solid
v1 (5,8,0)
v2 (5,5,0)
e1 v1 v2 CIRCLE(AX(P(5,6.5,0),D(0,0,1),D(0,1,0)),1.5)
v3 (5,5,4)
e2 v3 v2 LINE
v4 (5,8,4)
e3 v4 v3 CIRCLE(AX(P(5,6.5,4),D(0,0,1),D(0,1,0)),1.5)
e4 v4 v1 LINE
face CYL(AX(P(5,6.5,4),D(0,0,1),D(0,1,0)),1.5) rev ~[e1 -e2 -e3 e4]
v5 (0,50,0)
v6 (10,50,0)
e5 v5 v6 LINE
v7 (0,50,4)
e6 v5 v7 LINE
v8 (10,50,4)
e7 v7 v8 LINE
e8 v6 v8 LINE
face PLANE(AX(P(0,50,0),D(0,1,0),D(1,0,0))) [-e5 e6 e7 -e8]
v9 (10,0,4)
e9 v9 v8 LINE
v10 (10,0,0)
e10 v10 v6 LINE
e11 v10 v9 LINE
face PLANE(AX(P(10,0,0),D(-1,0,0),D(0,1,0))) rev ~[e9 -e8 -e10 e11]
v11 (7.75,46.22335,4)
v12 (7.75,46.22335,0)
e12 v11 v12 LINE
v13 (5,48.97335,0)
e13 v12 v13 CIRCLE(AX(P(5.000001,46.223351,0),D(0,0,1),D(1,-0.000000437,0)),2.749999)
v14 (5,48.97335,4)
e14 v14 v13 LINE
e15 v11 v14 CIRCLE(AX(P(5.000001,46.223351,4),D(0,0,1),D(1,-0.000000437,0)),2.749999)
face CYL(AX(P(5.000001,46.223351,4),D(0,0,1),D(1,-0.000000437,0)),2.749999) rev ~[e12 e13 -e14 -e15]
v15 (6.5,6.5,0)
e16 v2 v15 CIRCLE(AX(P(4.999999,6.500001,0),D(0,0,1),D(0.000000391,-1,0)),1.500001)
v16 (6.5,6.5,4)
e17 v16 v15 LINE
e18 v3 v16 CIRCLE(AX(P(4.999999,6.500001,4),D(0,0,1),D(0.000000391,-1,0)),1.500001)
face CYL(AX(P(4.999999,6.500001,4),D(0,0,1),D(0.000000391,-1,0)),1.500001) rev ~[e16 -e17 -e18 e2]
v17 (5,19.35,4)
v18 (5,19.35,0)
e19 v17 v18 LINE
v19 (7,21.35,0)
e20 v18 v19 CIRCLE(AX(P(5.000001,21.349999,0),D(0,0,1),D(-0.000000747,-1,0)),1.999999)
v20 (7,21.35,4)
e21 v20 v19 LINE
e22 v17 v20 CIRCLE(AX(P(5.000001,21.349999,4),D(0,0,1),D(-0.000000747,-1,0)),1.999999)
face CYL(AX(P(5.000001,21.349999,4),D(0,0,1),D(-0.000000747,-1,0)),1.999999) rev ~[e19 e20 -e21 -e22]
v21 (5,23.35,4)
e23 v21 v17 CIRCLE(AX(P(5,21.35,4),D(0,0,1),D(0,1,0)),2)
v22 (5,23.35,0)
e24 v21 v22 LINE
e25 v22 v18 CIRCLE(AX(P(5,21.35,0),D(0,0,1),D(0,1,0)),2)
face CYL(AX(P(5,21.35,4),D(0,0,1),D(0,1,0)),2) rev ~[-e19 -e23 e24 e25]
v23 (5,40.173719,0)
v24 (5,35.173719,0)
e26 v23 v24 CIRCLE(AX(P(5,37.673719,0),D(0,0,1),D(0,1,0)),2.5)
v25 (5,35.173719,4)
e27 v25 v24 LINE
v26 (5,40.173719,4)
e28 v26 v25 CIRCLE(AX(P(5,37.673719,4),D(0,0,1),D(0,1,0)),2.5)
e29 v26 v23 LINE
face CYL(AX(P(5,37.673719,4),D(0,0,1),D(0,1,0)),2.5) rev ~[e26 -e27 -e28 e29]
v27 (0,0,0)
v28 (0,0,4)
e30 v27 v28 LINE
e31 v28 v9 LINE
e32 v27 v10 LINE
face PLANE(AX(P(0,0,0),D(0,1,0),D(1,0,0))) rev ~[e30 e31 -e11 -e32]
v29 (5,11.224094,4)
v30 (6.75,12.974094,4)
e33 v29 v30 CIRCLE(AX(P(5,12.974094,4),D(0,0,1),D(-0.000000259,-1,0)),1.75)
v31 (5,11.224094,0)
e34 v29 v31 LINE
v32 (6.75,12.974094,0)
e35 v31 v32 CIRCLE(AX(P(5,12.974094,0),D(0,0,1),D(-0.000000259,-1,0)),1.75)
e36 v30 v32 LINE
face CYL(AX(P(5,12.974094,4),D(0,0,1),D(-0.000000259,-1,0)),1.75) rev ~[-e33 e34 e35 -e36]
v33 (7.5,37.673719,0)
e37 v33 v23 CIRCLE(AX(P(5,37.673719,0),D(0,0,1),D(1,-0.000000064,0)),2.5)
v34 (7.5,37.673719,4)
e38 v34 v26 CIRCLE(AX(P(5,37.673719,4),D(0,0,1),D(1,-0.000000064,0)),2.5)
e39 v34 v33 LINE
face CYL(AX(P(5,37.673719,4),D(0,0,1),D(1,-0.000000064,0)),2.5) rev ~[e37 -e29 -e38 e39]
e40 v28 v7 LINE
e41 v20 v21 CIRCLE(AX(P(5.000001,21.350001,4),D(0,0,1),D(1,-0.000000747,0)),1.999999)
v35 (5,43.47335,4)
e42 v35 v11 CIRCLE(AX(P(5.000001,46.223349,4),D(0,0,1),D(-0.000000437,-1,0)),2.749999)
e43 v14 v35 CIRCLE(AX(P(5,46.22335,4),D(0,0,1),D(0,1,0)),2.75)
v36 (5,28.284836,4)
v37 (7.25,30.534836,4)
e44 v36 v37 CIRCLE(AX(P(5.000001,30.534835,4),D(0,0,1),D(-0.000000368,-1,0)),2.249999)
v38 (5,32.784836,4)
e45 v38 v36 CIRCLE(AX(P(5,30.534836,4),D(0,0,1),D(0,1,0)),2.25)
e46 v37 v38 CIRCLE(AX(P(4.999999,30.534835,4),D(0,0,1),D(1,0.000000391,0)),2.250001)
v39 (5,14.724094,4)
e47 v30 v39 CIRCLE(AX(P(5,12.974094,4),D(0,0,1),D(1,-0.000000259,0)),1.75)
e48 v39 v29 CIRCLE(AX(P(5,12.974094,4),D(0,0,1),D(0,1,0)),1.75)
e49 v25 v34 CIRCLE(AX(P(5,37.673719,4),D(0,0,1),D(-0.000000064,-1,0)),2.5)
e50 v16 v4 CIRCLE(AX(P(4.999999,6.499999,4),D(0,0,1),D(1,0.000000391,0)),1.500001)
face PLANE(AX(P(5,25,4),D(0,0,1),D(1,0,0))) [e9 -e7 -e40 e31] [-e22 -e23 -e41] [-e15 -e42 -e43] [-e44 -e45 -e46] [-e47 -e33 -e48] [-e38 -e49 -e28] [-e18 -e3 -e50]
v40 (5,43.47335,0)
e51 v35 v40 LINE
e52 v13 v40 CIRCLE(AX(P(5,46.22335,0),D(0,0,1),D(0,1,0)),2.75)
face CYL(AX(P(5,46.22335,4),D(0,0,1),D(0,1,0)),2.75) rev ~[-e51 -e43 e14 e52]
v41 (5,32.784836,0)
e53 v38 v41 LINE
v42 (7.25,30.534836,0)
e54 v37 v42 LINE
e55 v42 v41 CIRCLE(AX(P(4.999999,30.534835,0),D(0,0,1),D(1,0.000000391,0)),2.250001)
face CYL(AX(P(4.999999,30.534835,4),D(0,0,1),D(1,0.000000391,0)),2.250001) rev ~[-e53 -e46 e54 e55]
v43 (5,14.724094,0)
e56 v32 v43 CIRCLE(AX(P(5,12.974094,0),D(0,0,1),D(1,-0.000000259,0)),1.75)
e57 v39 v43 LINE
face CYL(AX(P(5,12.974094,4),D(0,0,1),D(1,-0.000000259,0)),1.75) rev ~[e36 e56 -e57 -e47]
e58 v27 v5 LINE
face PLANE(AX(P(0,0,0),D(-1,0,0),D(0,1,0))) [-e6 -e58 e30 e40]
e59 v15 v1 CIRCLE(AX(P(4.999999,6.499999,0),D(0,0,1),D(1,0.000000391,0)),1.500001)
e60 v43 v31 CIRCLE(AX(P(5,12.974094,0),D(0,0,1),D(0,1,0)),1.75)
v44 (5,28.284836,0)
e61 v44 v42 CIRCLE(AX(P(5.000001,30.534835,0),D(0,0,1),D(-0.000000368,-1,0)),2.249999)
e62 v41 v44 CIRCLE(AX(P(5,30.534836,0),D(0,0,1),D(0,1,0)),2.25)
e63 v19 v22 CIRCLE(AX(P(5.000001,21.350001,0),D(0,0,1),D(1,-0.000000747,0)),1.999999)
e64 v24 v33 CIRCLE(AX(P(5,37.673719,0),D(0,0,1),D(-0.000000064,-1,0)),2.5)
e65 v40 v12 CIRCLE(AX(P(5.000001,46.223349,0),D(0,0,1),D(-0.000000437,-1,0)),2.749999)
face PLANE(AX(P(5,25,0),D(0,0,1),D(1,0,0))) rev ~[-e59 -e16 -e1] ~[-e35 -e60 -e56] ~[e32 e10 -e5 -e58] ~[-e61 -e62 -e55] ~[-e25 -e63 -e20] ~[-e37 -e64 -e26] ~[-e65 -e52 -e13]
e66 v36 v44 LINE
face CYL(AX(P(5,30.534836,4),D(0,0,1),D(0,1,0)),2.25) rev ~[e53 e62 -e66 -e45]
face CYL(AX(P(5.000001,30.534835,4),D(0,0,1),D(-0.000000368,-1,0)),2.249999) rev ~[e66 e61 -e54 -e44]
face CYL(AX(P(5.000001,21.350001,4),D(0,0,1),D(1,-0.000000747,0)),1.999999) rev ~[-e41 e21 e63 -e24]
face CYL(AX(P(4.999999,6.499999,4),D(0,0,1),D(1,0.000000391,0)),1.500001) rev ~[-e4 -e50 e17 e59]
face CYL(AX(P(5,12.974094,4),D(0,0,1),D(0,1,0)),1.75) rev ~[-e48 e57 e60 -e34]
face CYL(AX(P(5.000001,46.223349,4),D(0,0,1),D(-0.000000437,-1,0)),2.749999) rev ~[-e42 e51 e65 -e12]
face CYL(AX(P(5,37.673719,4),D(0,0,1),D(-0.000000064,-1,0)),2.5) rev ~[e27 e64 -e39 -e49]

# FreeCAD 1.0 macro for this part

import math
import FreeCAD as App
import Part
import Sketcher
from FreeCAD import Vector

doc = App.newDocument("Part")
body = doc.addObject("PartDesign::Body", "Body")

# Sketch on XY plane
sketch1 = body.newObject("Sketcher::SketchObject", "Sketch")
sketch1.AttachmentSupport = (doc.getObject("XY_Plane"), [""])
sketch1.MapMode = "FlatFace"
sketch1.addGeometry([
    Part.LineSegment(Vector(0, 50, 0), Vector(0, 0, 0)),
    Part.LineSegment(Vector(0, 0, 0), Vector(10, 0, 0)),
    Part.LineSegment(Vector(10, 0, 0), Vector(10, 50, 0)),
    Part.LineSegment(Vector(10, 50, 0), Vector(0, 50, 0)),
], False)
sketch1.addConstraint([
    Sketcher.Constraint("Coincident", 0, 2, 1, 1),
    Sketcher.Constraint("Coincident", 1, 2, 2, 1),
    Sketcher.Constraint("Coincident", 2, 2, 3, 1),
    Sketcher.Constraint("Coincident", 3, 2, 0, 1),
    Sketcher.Constraint("Vertical", 0),
    Sketcher.Constraint("Horizontal", 1),
    Sketcher.Constraint("Vertical", 2),
    Sketcher.Constraint("Horizontal", 3),
    Sketcher.Constraint("Coincident", 0, 2, -1, 1),
    Sketcher.Constraint("DistanceX", 1, 1, 1, 2, 10.0),
    Sketcher.Constraint("DistanceY", 0, 2, 0, 1, 50.0),
])
pad1 = body.newObject("PartDesign::Pad", "Pad")
pad1.Profile = sketch1
pad1.Length = 4

# Sketch on XY plane
sketch2 = body.newObject("Sketcher::SketchObject", "Sketch001")
sketch2.AttachmentSupport = (doc.getObject("XY_Plane"), [""])
sketch2.MapMode = "FlatFace"
sketch2.AttachmentOffset = App.Placement(Vector(0, 0, 4), App.Rotation())
sketch2.addGeometry([
    Part.ArcOfCircle(Part.Circle(Vector(4.999999, 6.500001, 0), Vector(0, 0, 1), 1.500001), math.radians(-89.999978), math.radians(-0.000022)),  # 0
    Part.ArcOfCircle(Part.Circle(Vector(4.999999, 6.499999, 0), Vector(0, 0, 1), 1.500001), math.radians(0.000022), math.radians(89.999978)),  # 1
    Part.ArcOfCircle(Part.Circle(Vector(5, 6.5, 0), Vector(0, 0, 1), 1.5), math.radians(90), math.radians(270)),  # 2
    Part.ArcOfCircle(Part.Circle(Vector(5, 46.22335, 0), Vector(0, 0, 1), 2.75), math.radians(90), math.radians(270)),  # 3
    Part.ArcOfCircle(Part.Circle(Vector(5.000001, 46.223349, 0), Vector(0, 0, 1), 2.749999), math.radians(-90.000025), math.radians(0.000025)),  # 4
    Part.ArcOfCircle(Part.Circle(Vector(5.000001, 46.223351, 0), Vector(0, 0, 1), 2.749999), math.radians(-0.000025), math.radians(90.000025)),  # 5
    Part.ArcOfCircle(Part.Circle(Vector(5, 37.673719, 0), Vector(0, 0, 1), 2.5), math.radians(90), math.radians(270)),  # 6
    Part.ArcOfCircle(Part.Circle(Vector(5, 37.673719, 0), Vector(0, 0, 1), 2.5), math.radians(-90.000004), math.radians(0.000004)),  # 7
    Part.ArcOfCircle(Part.Circle(Vector(5, 37.673719, 0), Vector(0, 0, 1), 2.5), math.radians(-0.000004), math.radians(90.000004)),  # 8
    Part.ArcOfCircle(Part.Circle(Vector(5, 30.534836, 0), Vector(0, 0, 1), 2.25), math.radians(90), math.radians(270)),  # 9
    Part.ArcOfCircle(Part.Circle(Vector(5.000001, 30.534835, 0), Vector(0, 0, 1), 2.249999), math.radians(-90.000021), math.radians(0.000021)),  # 10
    Part.ArcOfCircle(Part.Circle(Vector(4.999999, 30.534835, 0), Vector(0, 0, 1), 2.250001), math.radians(0.000022), math.radians(89.999978)),  # 11
    Part.ArcOfCircle(Part.Circle(Vector(5, 21.35, 0), Vector(0, 0, 1), 2), math.radians(90), math.radians(270)),  # 12
    Part.ArcOfCircle(Part.Circle(Vector(5.000001, 21.349999, 0), Vector(0, 0, 1), 1.999999), math.radians(-90.000043), math.radians(0.000043)),  # 13
    Part.ArcOfCircle(Part.Circle(Vector(5.000001, 21.350001, 0), Vector(0, 0, 1), 1.999999), math.radians(-0.000043), math.radians(90.000043)),  # 14
    Part.ArcOfCircle(Part.Circle(Vector(5, 12.974094, 0), Vector(0, 0, 1), 1.75), math.radians(90), math.radians(270)),  # 15
    Part.ArcOfCircle(Part.Circle(Vector(5, 12.974094, 0), Vector(0, 0, 1), 1.75), math.radians(-90.000015), math.radians(0.000015)),  # 16
    Part.ArcOfCircle(Part.Circle(Vector(5, 12.974094, 0), Vector(0, 0, 1), 1.75), math.radians(-0.000015), math.radians(90.000015)),  # 17
], False)
sketch2.addConstraint([
    Sketcher.Constraint("Tangent", 0, 2, 1, 1),
    Sketcher.Constraint("Tangent", 1, 2, 2, 1),
    Sketcher.Constraint("Tangent", 2, 2, 0, 1),
    Sketcher.Constraint("Tangent", 3, 2, 4, 1),
    Sketcher.Constraint("Tangent", 4, 2, 5, 1),
    Sketcher.Constraint("Tangent", 5, 2, 3, 1),
    Sketcher.Constraint("Tangent", 6, 2, 7, 1),
    Sketcher.Constraint("Tangent", 7, 2, 8, 1),
    Sketcher.Constraint("Tangent", 8, 2, 6, 1),
    Sketcher.Constraint("Tangent", 9, 2, 10, 1),
    Sketcher.Constraint("Tangent", 10, 2, 11, 1),
    Sketcher.Constraint("Tangent", 11, 2, 9, 1),
    Sketcher.Constraint("Tangent", 12, 2, 13, 1),
    Sketcher.Constraint("Tangent", 13, 2, 14, 1),
    Sketcher.Constraint("Tangent", 14, 2, 12, 1),
    Sketcher.Constraint("Tangent", 15, 2, 16, 1),
    Sketcher.Constraint("Tangent", 16, 2, 17, 1),
    Sketcher.Constraint("Tangent", 17, 2, 15, 1),
    Sketcher.Constraint("Horizontal", 2, 3, 0, 2),
    Sketcher.Constraint("Horizontal", 5, 3, 4, 2),
    Sketcher.Constraint("Horizontal", 8, 3, 7, 2),
    Sketcher.Constraint("Horizontal", 11, 3, 10, 2),
    Sketcher.Constraint("Horizontal", 14, 3, 13, 2),
    Sketcher.Constraint("Horizontal", 17, 3, 16, 2),
    Sketcher.Constraint("Vertical", 2, 3, 3, 3),
    Sketcher.Constraint("Vertical", 5, 3, 6, 3),
    Sketcher.Constraint("Vertical", 8, 3, 9, 3),
    Sketcher.Constraint("Vertical", 11, 3, 12, 3),
    Sketcher.Constraint("Vertical", 14, 3, 15, 3),
    Sketcher.Constraint("Vertical", 17, 3, 1, 2),
    Sketcher.Constraint("Vertical", 1, 2, 2, 2),
    Sketcher.Constraint("Vertical", 2, 2, 3, 2),
    Sketcher.Constraint("Vertical", 3, 2, 5, 2),
    Sketcher.Constraint("Vertical", 5, 2, 6, 2),
    Sketcher.Constraint("Vertical", 6, 2, 8, 2),
    Sketcher.Constraint("Vertical", 8, 2, 9, 2),
    Sketcher.Constraint("Vertical", 9, 2, 11, 2),
    Sketcher.Constraint("Vertical", 11, 2, 12, 2),
    Sketcher.Constraint("Vertical", 12, 2, 14, 2),
    Sketcher.Constraint("Vertical", 14, 2, 15, 2),
    Sketcher.Constraint("Vertical", 15, 2, 17, 2),
    Sketcher.Constraint("Radius", 12, 2.0),
    Sketcher.Constraint("Radius", 0, 1.500001),
    Sketcher.Constraint("Radius", 6, 2.5),
    Sketcher.Constraint("Radius", 3, 2.75),
    Sketcher.Constraint("Radius", 9, 2.25),
    Sketcher.Constraint("Radius", 15, 1.75),
    Sketcher.Constraint("DistanceX", -1, 1, 0, 3, 4.999999),
    Sketcher.Constraint("DistanceY", -1, 1, 1, 2, 8.0),
    Sketcher.Constraint("DistanceY", -1, 1, 12, 3, 21.35),
    Sketcher.Constraint("DistanceY", -1, 1, 3, 3, 46.22335),
    Sketcher.Constraint("DistanceY", -1, 1, 6, 3, 37.673719),
    Sketcher.Constraint("DistanceY", -1, 1, 9, 3, 30.534836),
    Sketcher.Constraint("DistanceY", -1, 1, 15, 3, 12.974094),
])
pocket1 = body.newObject("PartDesign::Pocket", "Pocket")
pocket1.Profile = sketch2
pocket1.Type = "ThroughAll"

doc.recompute()
